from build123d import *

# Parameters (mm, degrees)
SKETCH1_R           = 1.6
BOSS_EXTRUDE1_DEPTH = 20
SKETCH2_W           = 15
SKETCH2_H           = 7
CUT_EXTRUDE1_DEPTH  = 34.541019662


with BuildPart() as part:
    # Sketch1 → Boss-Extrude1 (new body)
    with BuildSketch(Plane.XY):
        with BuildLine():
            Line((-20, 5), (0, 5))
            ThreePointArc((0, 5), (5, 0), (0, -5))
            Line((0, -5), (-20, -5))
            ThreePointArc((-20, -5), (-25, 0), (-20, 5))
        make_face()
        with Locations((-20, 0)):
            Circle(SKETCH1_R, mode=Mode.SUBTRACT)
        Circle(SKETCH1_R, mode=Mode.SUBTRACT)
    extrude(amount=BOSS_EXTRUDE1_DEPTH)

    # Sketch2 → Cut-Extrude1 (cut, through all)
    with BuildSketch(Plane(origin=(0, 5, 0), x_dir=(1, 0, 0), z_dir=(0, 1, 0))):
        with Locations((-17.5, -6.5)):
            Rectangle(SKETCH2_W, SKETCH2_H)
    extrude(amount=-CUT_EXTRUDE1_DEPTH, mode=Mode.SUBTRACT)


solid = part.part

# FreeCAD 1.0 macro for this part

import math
import FreeCAD as App
import Part
import Sketcher

V = App.Vector

doc = App.newDocument("Part")
body = doc.addObject("PartDesign::Body", "Body")

sketch1 = doc.addObject("Sketcher::SketchObject", "Sketch")
body.addObject(sketch1)
sketch1.AttachmentSupport = (doc.XY_Plane, [""])
sketch1.MapMode = "FlatFace"
sketch1.addGeometry([
    Part.LineSegment(V(0, 5, 0), V(-20, 5, 0)),
    Part.ArcOfCircle(Part.Circle(V(-20, 0, 0), V(0, 0, 1), 5), math.radians(90), math.radians(270)),
    Part.LineSegment(V(-20, -5, 0), V(0, -5, 0)),
    Part.ArcOfCircle(Part.Circle(V(0, 0, 0), V(0, 0, 1), 5), math.radians(-90), math.radians(90)),
    Part.Circle(V(0, 0, 0), V(0, 0, 1), 1.6),
    Part.Circle(V(-20, 0, 0), V(0, 0, 1), 1.6),
], False)
sketch1.addConstraint([
    Sketcher.Constraint("Tangent", 0, 2, 1, 1),
    Sketcher.Constraint("Tangent", 1, 2, 2, 1),
    Sketcher.Constraint("Tangent", 2, 2, 3, 1),
    Sketcher.Constraint("Tangent", 3, 2, 0, 1),
    Sketcher.Constraint("Horizontal", 0),
    Sketcher.Constraint("Horizontal", 2),
    Sketcher.Constraint("Coincident", 3, 3, -1, 1),
    Sketcher.Constraint("Coincident", 4, 3, -1, 1),
    Sketcher.Constraint("Coincident", 5, 3, 1, 3),
    Sketcher.Constraint("Equal", 4, 5),
    Sketcher.Constraint("Radius", 1, 5.0),
    Sketcher.Constraint("Diameter", 4, 3.2),
    Sketcher.Constraint("DistanceX", 0, 2, 0, 1, 20.0),
])
pad1 = doc.addObject("PartDesign::Pad", "Pad")
body.addObject(pad1)
pad1.Profile = sketch1
pad1.Length = 20

sketch2 = doc.addObject("Sketcher::SketchObject", "Sketch001")
body.addObject(sketch2)
sketch2.AttachmentSupport = (doc.XZ_Plane, [""])
sketch2.MapMode = "FlatFace"
sketch2.AttachmentOffset = App.Placement(V(0, 0, -5), App.Rotation())
sketch2.addGeometry([
    Part.LineSegment(V(-25, 3, 0), V(-25, 10, 0)),
    Part.LineSegment(V(-25, 10, 0), V(-10, 10, 0)),
    Part.LineSegment(V(-10, 10, 0), V(-10, 3, 0)),
    Part.LineSegment(V(-10, 3, 0), V(-25, 3, 0)),
], False)
sketch2.addConstraint([
    Sketcher.Constraint("Coincident", 0, 2, 1, 1),
    Sketcher.Constraint("Coincident", 1, 2, 2, 1),
    Sketcher.Constraint("Coincident", 2, 2, 3, 1),
    Sketcher.Constraint("Coincident", 3, 2, 0, 1),
    Sketcher.Constraint("Vertical", 0),
    Sketcher.Constraint("Horizontal", 1),
    Sketcher.Constraint("Vertical", 2),
    Sketcher.Constraint("Horizontal", 3),
    Sketcher.Constraint("DistanceX", 1, 1, 1, 2, 15.0),
    Sketcher.Constraint("DistanceY", 0, 1, 0, 2, 7.0),
    Sketcher.Constraint("DistanceX", 0, 2, -1, 1, 25.0),
    Sketcher.Constraint("DistanceY", -1, 1, 0, 2, 10.0),
])
pocket1 = doc.addObject("PartDesign::Pocket", "Pocket")
body.addObject(pocket1)
pocket1.Profile = sketch2
pocket1.Type = "ThroughAll"
pocket1.Reversed = True

doc.recompute()
